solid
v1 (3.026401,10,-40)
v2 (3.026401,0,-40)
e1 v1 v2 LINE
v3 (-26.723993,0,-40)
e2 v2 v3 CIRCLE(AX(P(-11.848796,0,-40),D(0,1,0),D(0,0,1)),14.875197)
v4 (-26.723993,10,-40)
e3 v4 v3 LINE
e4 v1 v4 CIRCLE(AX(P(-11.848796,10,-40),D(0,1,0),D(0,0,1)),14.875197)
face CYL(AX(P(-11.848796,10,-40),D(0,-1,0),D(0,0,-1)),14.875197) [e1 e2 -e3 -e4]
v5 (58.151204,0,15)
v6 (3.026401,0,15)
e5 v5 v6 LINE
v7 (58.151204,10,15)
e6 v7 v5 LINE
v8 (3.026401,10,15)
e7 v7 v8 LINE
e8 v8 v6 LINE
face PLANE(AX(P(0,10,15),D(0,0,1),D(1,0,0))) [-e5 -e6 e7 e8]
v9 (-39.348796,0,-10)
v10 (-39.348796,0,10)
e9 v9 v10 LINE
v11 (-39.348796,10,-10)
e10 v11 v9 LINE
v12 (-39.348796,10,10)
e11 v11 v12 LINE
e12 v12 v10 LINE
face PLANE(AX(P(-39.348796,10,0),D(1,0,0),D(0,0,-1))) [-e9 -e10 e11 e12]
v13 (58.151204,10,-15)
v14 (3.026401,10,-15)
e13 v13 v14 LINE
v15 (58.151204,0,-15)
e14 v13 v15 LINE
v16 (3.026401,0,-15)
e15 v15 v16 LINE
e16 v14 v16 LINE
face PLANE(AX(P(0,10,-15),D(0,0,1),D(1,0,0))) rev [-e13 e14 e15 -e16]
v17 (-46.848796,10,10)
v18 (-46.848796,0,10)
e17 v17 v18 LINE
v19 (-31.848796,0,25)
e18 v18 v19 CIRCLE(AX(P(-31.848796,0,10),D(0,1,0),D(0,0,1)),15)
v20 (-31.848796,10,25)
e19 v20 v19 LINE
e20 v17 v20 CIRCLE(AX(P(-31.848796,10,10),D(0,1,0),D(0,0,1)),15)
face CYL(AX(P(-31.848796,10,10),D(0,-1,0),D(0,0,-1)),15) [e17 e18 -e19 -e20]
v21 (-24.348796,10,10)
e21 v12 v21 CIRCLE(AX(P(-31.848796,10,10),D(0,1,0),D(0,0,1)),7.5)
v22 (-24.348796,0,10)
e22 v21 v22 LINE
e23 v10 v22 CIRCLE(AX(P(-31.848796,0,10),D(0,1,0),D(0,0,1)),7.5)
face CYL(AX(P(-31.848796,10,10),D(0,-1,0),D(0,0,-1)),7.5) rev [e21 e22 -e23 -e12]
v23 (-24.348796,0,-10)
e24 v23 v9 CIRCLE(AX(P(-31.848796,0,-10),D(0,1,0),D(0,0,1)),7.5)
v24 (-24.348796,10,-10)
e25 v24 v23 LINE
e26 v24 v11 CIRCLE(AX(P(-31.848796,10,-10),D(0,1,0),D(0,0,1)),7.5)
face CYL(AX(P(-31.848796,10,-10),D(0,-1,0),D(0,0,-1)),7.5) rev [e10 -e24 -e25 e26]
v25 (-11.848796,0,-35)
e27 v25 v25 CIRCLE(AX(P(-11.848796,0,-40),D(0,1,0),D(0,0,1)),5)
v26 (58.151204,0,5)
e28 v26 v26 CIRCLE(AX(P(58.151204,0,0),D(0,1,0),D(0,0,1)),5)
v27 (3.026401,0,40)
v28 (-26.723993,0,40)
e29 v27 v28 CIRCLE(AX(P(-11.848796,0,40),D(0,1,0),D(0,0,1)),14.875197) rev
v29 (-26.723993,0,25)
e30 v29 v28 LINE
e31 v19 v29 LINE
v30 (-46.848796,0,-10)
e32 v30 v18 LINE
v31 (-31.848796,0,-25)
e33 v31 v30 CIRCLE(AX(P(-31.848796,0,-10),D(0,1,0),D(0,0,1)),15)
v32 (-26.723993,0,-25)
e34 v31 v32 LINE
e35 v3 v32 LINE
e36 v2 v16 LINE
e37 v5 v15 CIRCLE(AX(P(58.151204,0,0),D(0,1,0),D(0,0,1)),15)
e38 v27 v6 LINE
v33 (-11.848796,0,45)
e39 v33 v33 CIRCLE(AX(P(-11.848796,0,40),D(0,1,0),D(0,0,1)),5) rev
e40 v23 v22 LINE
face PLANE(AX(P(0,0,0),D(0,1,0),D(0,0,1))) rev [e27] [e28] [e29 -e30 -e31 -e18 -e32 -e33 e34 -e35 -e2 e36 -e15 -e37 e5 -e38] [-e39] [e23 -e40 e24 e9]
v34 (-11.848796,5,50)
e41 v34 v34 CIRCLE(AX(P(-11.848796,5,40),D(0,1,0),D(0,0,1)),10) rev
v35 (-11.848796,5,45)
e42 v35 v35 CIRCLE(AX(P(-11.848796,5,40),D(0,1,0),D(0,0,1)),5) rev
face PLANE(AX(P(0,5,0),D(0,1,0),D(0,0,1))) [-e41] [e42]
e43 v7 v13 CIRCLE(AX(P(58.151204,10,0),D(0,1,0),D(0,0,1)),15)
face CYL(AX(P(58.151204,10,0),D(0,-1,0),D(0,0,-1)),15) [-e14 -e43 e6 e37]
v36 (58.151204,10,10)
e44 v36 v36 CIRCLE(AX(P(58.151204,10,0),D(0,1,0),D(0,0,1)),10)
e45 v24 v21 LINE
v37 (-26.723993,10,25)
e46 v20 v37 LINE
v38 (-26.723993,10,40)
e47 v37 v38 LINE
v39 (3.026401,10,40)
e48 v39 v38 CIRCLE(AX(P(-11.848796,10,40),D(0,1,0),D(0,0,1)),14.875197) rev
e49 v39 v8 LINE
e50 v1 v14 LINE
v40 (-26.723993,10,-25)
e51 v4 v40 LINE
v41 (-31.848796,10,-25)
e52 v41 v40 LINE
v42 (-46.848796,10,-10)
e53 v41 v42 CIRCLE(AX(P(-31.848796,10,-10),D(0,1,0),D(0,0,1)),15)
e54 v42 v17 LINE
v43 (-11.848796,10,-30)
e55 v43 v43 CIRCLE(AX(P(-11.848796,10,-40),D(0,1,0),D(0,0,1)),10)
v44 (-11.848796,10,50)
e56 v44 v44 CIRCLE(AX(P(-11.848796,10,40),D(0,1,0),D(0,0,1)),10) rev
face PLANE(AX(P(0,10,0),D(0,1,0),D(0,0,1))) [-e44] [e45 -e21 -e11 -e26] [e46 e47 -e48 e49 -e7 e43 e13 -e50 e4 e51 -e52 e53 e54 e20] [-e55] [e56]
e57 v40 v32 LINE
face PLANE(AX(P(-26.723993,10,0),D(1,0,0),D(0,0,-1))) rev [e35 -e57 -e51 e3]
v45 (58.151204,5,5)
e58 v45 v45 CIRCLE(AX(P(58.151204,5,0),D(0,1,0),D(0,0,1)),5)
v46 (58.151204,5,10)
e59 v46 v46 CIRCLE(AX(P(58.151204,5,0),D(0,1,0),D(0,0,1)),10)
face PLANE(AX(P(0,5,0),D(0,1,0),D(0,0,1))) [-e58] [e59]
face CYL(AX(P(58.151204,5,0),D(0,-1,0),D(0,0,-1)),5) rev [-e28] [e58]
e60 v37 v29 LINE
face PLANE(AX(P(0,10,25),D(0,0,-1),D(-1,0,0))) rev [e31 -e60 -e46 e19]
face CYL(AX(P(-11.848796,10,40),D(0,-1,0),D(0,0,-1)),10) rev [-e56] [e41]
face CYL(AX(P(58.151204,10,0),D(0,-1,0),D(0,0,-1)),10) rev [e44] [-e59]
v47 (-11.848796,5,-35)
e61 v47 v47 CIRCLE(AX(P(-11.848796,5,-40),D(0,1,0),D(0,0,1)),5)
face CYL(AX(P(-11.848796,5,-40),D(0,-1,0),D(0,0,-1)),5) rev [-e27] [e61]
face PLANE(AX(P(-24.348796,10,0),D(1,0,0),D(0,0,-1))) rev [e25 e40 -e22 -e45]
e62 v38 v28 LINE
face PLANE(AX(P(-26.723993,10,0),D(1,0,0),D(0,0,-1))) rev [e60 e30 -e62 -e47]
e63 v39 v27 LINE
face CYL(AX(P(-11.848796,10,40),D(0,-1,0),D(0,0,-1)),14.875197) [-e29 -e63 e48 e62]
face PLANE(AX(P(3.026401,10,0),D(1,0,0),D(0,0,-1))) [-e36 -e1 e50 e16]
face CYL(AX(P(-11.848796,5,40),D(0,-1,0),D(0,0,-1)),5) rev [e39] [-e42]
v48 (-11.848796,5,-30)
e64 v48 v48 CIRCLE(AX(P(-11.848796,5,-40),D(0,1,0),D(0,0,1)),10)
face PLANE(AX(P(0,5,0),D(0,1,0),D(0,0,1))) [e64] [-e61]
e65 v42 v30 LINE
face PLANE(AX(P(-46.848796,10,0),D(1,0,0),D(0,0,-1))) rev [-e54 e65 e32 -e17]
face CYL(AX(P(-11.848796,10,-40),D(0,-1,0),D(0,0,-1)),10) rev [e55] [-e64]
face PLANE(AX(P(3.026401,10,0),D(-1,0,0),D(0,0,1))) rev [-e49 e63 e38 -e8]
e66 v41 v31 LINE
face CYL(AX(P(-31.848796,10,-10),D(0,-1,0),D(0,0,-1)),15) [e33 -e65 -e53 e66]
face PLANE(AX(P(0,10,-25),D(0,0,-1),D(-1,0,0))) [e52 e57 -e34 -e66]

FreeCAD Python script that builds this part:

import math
import FreeCAD as App
import Part
import Sketcher
Q = App.Units.Quantity

doc = App.newDocument("Part")
params = doc.addObject("Spreadsheet::Sheet", "Params")
for row, (alias, value) in enumerate([
    ("sketch1_diameter", "20 mm"),
    ("sketch1_radius", "15 mm"),
    ("sketch1_radius2", "7.5 mm"),
    ("sketch1_height", "20 mm"),
    ("sketch1_height2", "15 mm"),
    ("pad1_length", "10 mm"),
    ("sketch2_diameter", "20 mm"),
    ("sketch2_diameter2", "10 mm"),
    ("pad2_length", "5 mm"),
], start=1):
    params.set(f"A{row}", alias)
    params.set(f"B{row}", "=" + value)
    params.setAlias(f"B{row}", alias)

body = doc.addObject("PartDesign::Body", "Body")

# Sketch on XZ plane
sketch1 = body.newObject("Sketcher::SketchObject", "Sketch")
sketch1.AttachmentSupport = (doc.getObject("XZ_Plane"), [""])
sketch1.MapMode = "FlatFace"
sketch1.addGeometry([
    Part.LineSegment(App.Vector(-27, -25, 0), App.Vector(-32, -25, 0)),  # 0
    Part.ArcOfCircle(Part.Circle(App.Vector(-32, -10, 0), App.Vector(0, 0, 1), 15), math.radians(-180), math.radians(-90)),  # 1
    Part.LineSegment(App.Vector(-47, -10, 0), App.Vector(-47, 10, 0)),  # 2
    Part.ArcOfCircle(Part.Circle(App.Vector(-32, 10, 0), App.Vector(0, 0, 1), 15), math.radians(90), math.radians(180)),  # 3
    Part.LineSegment(App.Vector(-32, 25, 0), App.Vector(-27, 25, 0)),  # 4
    Part.LineSegment(App.Vector(-27, 25, 0), App.Vector(-27, 40, 0)),  # 5
    Part.ArcOfCircle(Part.Circle(App.Vector(-12, 40, 0), App.Vector(0, 0, 1), 15), math.radians(0), math.radians(180)),  # 6
    Part.LineSegment(App.Vector(3, 40, 0), App.Vector(3, 15, 0)),  # 7
    Part.LineSegment(App.Vector(3, 15, 0), App.Vector(58, 15, 0)),  # 8
    Part.ArcOfCircle(Part.Circle(App.Vector(58, 0, 0), App.Vector(0, 0, 1), 15), math.radians(-90), math.radians(90)),  # 9
    Part.LineSegment(App.Vector(58, -15, 0), App.Vector(3, -15, 0)),  # 10
    Part.LineSegment(App.Vector(3, -15, 0), App.Vector(3, -40, 0)),  # 11
    Part.ArcOfCircle(Part.Circle(App.Vector(-12, -40, 0), App.Vector(0, 0, 1), 15), math.radians(180), math.radians(360)),  # 12
    Part.LineSegment(App.Vector(-27, -40, 0), App.Vector(-27, -25, 0)),  # 13
    Part.Circle(App.Vector(-12, 40, 0), App.Vector(0, 0, 1), 10),  # 14
    Part.Circle(App.Vector(58, 0, 0), App.Vector(0, 0, 1), 10),  # 15
    Part.LineSegment(App.Vector(-39, 10, 0), App.Vector(-39, -10, 0)),  # 16
    Part.ArcOfCircle(Part.Circle(App.Vector(-32, -10, 0), App.Vector(0, 0, 1), 8), math.radians(180), math.radians(360)),  # 17
    Part.LineSegment(App.Vector(-24, -10, 0), App.Vector(-24, 10, 0)),  # 18
    Part.ArcOfCircle(Part.Circle(App.Vector(-32, 10, 0), App.Vector(0, 0, 1), 8), math.radians(0), math.radians(180)),  # 19
    Part.Circle(App.Vector(-12, -40, 0), App.Vector(0, 0, 1), 10),  # 20
], False)
sketch1.addConstraint([
    Sketcher.Constraint("Tangent", 0, 2, 1, 2),
    Sketcher.Constraint("Tangent", 1, 1, 2, 1),
    Sketcher.Constraint("Tangent", 2, 2, 3, 2),
    Sketcher.Constraint("Tangent", 3, 1, 4, 1),
    Sketcher.Constraint("Coincident", 4, 2, 5, 1),
    Sketcher.Constraint("Tangent", 5, 2, 6, 2),
    Sketcher.Constraint("Tangent", 6, 1, 7, 1),
    Sketcher.Constraint("Coincident", 7, 2, 8, 1),
    Sketcher.Constraint("Tangent", 8, 2, 9, 2),
    Sketcher.Constraint("Tangent", 9, 1, 10, 1),
    Sketcher.Constraint("Coincident", 10, 2, 11, 1),
    Sketcher.Constraint("Tangent", 11, 2, 12, 2),
    Sketcher.Constraint("Tangent", 12, 1, 13, 1),
    Sketcher.Constraint("Coincident", 13, 2, 0, 1),
    Sketcher.Constraint("Tangent", 16, 2, 17, 1),
    Sketcher.Constraint("Tangent", 17, 2, 18, 1),
    Sketcher.Constraint("Tangent", 18, 2, 19, 1),
    Sketcher.Constraint("Tangent", 19, 2, 16, 1),
    Sketcher.Constraint("Horizontal", 0),
    Sketcher.Constraint("Vertical", 2),
    Sketcher.Constraint("Horizontal", 4),
    Sketcher.Constraint("Vertical", 5),
    Sketcher.Constraint("Vertical", 7),
    Sketcher.Constraint("Horizontal", 8),
    Sketcher.Constraint("Horizontal", 10),
    Sketcher.Constraint("Vertical", 11),
    Sketcher.Constraint("Vertical", 13),
    Sketcher.Constraint("Vertical", 16),
    Sketcher.Constraint("Vertical", 18),
    Sketcher.Constraint("Coincident", 14, 3, 6, 3),
    Sketcher.Constraint("Coincident", 15, 3, 9, 3),
    Sketcher.Constraint("Coincident", 17, 3, 1, 3),
    Sketcher.Constraint("Coincident", 19, 3, 3, 3),
    Sketcher.Constraint("Coincident", 20, 3, 12, 3),
    Sketcher.Constraint("Equal", 3, 9),
    Sketcher.Constraint("Equal", 6, 12),
    Sketcher.Constraint("Equal", 14, 15),
    Sketcher.Constraint("Equal", 15, 20),
    Sketcher.Constraint("Symmetric", 6, 3, 12, 3, -1),
    Sketcher.Constraint("PointOnObject", 9, 3, -1),
    Sketcher.Constraint("Equal", 5, 13),
    Sketcher.Constraint("Diameter", 14, Q("20 mm")),
    Sketcher.Constraint("Radius", 1, Q("15 mm")),
    Sketcher.Constraint("Radius", 17, Q("7.5 mm")),
    Sketcher.Constraint("DistanceY", 2, 1, 2, 2, Q("20 mm")),
    Sketcher.Constraint("DistanceY", 5, 1, 5, 2, Q("15 mm")),
    Sketcher.Constraint("DistanceX", 3, 3, 6, 3, Q("20 mm")),
    Sketcher.Constraint("DistanceX", 6, 3, 9, 3, Q("70 mm")),
    Sketcher.Constraint("Radius", 6, Q("14.875197 mm")),
    Sketcher.Constraint("DistanceX", -1, 1, 6, 1, Q("3.026401 mm")),
])
sketch1.setExpression("Constraints[41]", "Params.sketch1_diameter")
sketch1.setExpression("Constraints[42]", "Params.sketch1_radius")
sketch1.setExpression("Constraints[43]", "Params.sketch1_radius2")
sketch1.setExpression("Constraints[44]", "Params.sketch1_height")
sketch1.setExpression("Constraints[45]", "Params.sketch1_height2")
pad1 = body.newObject("PartDesign::Pad", "Pad")
pad1.Profile = sketch1
pad1.setExpression("Length", "Params.pad1_length")
pad1.Reversed = True

# Sketch on XZ plane
sketch2 = body.newObject("Sketcher::SketchObject", "Sketch001")
sketch2.AttachmentSupport = (doc.getObject("XZ_Plane"), [""])
sketch2.MapMode = "FlatFace"
sketch2.addGeometry([
    Part.Circle(App.Vector(-12, -40, 0), App.Vector(0, 0, 1), 10),  # 0
    Part.Circle(App.Vector(-12, -40, 0), App.Vector(0, 0, 1), 5),  # 1
    Part.Circle(App.Vector(-12, 40, 0), App.Vector(0, 0, 1), 10),  # 2
    Part.Circle(App.Vector(-12, 40, 0), App.Vector(0, 0, 1), 5),  # 3
    Part.Circle(App.Vector(58, 0, 0), App.Vector(0, 0, 1), 10),  # 4
    Part.Circle(App.Vector(58, 0, 0), App.Vector(0, 0, 1), 5),  # 5
], False)
sketch2.addConstraint([
    Sketcher.Constraint("Coincident", 1, 3, 0, 3),
    Sketcher.Constraint("Coincident", 3, 3, 2, 3),
    Sketcher.Constraint("Coincident", 5, 3, 4, 3),
    Sketcher.Constraint("Equal", 0, 2),
    Sketcher.Constraint("Equal", 1, 3),
    Sketcher.Constraint("Equal", 2, 4),
    Sketcher.Constraint("Equal", 3, 5),
    Sketcher.Constraint("Symmetric", 0, 3, 2, 3, -1),
    Sketcher.Constraint("PointOnObject", 4, 3, -1),
    Sketcher.Constraint("Diameter", 0, Q("20 mm")),
    Sketcher.Constraint("Diameter", 1, Q("10 mm")),
    Sketcher.Constraint("DistanceY", 0, 3, -1, 1, Q("40 mm")),
    Sketcher.Constraint("DistanceX", 0, 3, 4, 3, Q("70 mm")),
    Sketcher.Constraint("DistanceX", 0, 3, -1, 1, Q("11.848796 mm")),
])
sketch2.setExpression("Constraints[9]", "Params.sketch2_diameter")
sketch2.setExpression("Constraints[10]", "Params.sketch2_diameter2")
pad2 = body.newObject("PartDesign::Pad", "Pad001")
pad2.Profile = sketch2
pad2.setExpression("Length", "Params.pad2_length")
pad2.Reversed = True

doc.recompute()
